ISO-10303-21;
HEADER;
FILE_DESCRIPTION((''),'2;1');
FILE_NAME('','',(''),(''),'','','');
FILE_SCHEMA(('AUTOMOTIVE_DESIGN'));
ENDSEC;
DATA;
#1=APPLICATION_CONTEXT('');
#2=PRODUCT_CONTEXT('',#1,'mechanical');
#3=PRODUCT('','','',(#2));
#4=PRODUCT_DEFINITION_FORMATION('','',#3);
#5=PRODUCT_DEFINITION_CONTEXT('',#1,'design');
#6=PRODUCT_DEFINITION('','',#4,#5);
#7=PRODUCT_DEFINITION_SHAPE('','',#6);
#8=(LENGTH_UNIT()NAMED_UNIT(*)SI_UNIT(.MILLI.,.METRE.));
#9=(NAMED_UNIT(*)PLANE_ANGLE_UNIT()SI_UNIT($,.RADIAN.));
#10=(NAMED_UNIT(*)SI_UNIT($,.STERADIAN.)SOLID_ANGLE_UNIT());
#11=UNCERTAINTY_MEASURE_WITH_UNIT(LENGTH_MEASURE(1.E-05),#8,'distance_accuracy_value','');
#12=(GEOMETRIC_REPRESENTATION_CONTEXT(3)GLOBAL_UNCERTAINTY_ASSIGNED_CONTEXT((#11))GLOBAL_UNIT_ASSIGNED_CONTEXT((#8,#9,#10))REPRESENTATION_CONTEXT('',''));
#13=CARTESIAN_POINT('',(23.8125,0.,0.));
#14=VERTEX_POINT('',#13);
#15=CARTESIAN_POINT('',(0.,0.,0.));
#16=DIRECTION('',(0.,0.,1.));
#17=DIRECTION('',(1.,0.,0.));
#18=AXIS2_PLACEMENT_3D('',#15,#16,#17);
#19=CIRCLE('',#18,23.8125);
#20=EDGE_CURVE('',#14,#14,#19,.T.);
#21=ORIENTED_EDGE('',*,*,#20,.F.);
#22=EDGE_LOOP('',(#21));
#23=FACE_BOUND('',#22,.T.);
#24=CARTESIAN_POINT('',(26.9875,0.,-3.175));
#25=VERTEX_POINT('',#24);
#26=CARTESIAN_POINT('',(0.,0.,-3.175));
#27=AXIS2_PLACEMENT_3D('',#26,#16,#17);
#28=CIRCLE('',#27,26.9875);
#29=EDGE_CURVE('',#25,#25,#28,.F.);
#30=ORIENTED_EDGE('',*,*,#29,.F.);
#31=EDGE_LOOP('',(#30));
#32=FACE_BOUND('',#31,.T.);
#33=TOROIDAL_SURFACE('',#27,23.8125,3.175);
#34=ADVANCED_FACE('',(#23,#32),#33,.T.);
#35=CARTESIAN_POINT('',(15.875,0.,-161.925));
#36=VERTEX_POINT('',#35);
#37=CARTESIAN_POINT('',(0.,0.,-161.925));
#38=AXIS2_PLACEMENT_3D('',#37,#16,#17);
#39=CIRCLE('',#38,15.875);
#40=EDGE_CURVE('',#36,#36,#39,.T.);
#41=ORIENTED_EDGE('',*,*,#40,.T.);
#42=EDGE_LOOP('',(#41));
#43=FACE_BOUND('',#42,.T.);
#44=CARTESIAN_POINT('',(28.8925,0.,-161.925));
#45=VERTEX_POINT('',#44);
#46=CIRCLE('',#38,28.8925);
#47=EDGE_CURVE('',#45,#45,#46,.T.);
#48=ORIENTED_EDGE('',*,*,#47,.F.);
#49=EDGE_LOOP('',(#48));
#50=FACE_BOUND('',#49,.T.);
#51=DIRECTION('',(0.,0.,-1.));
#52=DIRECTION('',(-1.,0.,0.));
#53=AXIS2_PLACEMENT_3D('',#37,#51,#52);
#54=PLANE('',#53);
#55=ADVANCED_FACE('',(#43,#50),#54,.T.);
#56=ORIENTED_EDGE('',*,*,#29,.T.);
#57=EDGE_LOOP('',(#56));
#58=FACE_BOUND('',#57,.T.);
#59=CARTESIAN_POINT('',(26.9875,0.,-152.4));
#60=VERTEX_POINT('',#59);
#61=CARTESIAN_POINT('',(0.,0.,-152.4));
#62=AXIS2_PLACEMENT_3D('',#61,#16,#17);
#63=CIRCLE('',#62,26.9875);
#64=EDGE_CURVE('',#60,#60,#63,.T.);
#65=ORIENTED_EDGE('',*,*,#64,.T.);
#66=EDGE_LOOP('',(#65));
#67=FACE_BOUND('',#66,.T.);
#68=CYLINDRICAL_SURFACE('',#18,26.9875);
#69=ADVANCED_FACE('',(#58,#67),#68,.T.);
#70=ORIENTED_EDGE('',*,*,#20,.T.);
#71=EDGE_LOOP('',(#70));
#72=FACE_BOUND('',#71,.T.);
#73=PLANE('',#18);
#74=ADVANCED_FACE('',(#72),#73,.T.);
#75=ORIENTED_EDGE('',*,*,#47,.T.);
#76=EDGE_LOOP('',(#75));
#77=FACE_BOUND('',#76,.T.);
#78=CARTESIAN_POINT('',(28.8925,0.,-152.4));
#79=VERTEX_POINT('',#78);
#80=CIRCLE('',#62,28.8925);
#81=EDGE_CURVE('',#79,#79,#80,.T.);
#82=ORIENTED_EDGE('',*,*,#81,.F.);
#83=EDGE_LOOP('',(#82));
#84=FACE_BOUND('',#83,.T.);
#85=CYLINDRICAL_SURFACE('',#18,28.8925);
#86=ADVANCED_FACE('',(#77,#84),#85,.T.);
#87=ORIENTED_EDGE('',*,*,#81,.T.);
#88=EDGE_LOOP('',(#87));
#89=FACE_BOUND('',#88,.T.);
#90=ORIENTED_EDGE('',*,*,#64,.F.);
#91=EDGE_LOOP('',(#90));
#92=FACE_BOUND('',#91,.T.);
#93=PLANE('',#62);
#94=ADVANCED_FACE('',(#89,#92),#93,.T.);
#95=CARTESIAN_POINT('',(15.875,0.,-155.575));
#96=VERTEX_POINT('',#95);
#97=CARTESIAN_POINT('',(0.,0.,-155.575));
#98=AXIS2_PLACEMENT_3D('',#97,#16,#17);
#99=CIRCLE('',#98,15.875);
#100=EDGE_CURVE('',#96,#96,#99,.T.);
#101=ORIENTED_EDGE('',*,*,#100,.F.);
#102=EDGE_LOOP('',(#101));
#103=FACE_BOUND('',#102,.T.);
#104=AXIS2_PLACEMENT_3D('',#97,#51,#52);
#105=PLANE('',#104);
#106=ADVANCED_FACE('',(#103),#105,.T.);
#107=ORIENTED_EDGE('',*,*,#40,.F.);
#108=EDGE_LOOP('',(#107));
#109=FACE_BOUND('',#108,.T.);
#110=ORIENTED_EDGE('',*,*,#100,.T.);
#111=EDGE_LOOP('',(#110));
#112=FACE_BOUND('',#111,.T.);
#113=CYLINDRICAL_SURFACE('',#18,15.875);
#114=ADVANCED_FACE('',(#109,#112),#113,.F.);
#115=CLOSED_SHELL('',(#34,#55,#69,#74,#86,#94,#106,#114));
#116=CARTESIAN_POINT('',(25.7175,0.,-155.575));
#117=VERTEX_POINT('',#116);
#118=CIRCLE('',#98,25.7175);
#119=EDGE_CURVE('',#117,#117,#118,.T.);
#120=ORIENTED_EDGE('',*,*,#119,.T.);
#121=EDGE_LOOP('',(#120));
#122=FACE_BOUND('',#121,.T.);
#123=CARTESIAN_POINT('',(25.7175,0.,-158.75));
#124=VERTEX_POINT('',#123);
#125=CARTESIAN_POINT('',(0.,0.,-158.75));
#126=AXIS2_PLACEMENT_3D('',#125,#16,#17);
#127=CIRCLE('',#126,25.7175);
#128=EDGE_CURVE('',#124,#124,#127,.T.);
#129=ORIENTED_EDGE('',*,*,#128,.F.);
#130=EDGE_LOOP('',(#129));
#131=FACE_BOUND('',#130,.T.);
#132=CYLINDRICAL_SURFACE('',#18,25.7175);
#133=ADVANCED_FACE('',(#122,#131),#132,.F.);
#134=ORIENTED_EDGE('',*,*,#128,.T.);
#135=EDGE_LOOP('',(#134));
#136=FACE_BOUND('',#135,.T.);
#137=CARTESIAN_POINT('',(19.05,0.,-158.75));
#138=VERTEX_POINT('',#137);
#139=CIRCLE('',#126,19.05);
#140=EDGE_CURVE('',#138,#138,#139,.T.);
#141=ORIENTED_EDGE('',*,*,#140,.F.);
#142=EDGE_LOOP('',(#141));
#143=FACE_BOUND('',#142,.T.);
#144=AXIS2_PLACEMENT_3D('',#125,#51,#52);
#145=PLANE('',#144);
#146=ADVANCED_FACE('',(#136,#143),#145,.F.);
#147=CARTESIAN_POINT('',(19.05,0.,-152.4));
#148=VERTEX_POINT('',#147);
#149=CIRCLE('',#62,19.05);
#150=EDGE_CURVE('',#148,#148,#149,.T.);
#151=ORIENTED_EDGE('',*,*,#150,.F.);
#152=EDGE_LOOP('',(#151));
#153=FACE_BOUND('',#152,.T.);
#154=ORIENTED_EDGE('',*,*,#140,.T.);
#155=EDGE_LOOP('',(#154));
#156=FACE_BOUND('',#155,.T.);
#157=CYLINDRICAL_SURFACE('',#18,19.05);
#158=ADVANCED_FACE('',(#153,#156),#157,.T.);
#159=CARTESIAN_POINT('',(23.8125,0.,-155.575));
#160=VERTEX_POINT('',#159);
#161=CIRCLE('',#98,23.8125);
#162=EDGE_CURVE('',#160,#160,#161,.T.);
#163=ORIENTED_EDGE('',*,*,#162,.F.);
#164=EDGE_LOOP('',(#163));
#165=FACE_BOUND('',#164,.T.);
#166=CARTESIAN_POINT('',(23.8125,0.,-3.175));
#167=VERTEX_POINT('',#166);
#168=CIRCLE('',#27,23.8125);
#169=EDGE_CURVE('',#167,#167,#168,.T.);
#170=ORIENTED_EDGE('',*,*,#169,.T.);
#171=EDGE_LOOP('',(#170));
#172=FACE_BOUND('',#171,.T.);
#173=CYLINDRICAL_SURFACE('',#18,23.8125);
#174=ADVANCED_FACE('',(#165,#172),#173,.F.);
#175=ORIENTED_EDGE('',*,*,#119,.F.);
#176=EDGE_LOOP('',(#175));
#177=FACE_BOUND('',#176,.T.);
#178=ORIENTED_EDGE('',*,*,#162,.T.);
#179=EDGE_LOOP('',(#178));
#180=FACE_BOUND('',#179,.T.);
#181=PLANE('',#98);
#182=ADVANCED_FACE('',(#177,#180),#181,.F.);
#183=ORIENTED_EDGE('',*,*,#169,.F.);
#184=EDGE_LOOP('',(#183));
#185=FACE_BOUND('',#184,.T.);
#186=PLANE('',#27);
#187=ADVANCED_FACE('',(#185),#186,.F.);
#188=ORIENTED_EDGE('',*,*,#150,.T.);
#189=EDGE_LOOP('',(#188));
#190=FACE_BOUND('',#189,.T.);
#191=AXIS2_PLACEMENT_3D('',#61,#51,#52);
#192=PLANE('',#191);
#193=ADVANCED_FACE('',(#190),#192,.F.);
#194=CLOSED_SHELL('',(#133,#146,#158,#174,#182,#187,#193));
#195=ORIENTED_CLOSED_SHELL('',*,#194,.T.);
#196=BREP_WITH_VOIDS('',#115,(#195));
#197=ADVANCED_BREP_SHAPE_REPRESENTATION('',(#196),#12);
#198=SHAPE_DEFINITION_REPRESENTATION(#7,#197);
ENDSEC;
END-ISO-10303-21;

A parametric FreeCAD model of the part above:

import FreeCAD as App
import Part
import Sketcher
from FreeCAD import Vector
Q = App.Units.Quantity


def edges_at(feature, points):
    """Names of the edges that pass closest to the given points."""
    edges = feature.Shape.Edges
    near = lambda p: min(range(len(edges)), key=lambda i: edges[i].distToShape(Part.Vertex(*p))[0])
    return sorted({f"Edge{near(p) + 1}" for p in points})

doc = App.newDocument("Part")
body = doc.addObject("PartDesign::Body", "Body")

# Sketch on YZ plane
sketch1 = body.newObject("Sketcher::SketchObject", "Sketch")
sketch1.AttachmentSupport = (doc.getObject("YZ_Plane"), [""])
sketch1.MapMode = "FlatFace"
sketch1.addGeometry([
    Part.LineSegment(Vector(27, 0, 0), Vector(0, 0, 0)),  # 0
    Part.LineSegment(Vector(0, 0, 0), Vector(0, -3.2, 0)),  # 1
    Part.LineSegment(Vector(0, -3.2, 0), Vector(23.8, -3.2, 0)),  # 2
    Part.LineSegment(Vector(23.8, -3.2, 0), Vector(23.8, -155.6, 0)),  # 3
    Part.LineSegment(Vector(23.8, -155.6, 0), Vector(25.7, -155.6, 0)),  # 4
    Part.LineSegment(Vector(25.7, -155.6, 0), Vector(25.7, -158.8, 0)),  # 5
    Part.LineSegment(Vector(25.7, -158.8, 0), Vector(19.1, -158.8, 0)),  # 6
    Part.LineSegment(Vector(19.1, -158.8, 0), Vector(19.1, -152.4, 0)),  # 7
    Part.LineSegment(Vector(19.1, -152.4, 0), Vector(0, -152.4, 0)),  # 8
    Part.LineSegment(Vector(0, -152.4, 0), Vector(0, -155.6, 0)),  # 9
    Part.LineSegment(Vector(0, -155.6, 0), Vector(15.9, -155.6, 0)),  # 10
    Part.LineSegment(Vector(15.9, -155.6, 0), Vector(15.9, -161.9, 0)),  # 11
    Part.LineSegment(Vector(15.9, -161.9, 0), Vector(28.9, -161.9, 0)),  # 12
    Part.LineSegment(Vector(28.9, -161.9, 0), Vector(28.9, -152.4, 0)),  # 13
    Part.LineSegment(Vector(28.9, -152.4, 0), Vector(27, -152.4, 0)),  # 14
    Part.LineSegment(Vector(27, -152.4, 0), Vector(27, 0, 0)),  # 15
], False)
sketch1.addConstraint([
    Sketcher.Constraint("Coincident", 0, 2, 1, 1),
    Sketcher.Constraint("Coincident", 1, 2, 2, 1),
    Sketcher.Constraint("Coincident", 2, 2, 3, 1),
    Sketcher.Constraint("Coincident", 3, 2, 4, 1),
    Sketcher.Constraint("Coincident", 4, 2, 5, 1),
    Sketcher.Constraint("Coincident", 5, 2, 6, 1),
    Sketcher.Constraint("Coincident", 6, 2, 7, 1),
    Sketcher.Constraint("Coincident", 7, 2, 8, 1),
    Sketcher.Constraint("Coincident", 8, 2, 9, 1),
    Sketcher.Constraint("Coincident", 9, 2, 10, 1),
    Sketcher.Constraint("Coincident", 10, 2, 11, 1),
    Sketcher.Constraint("Coincident", 11, 2, 12, 1),
    Sketcher.Constraint("Coincident", 12, 2, 13, 1),
    Sketcher.Constraint("Coincident", 13, 2, 14, 1),
    Sketcher.Constraint("Coincident", 14, 2, 15, 1),
    Sketcher.Constraint("Coincident", 15, 2, 0, 1),
    Sketcher.Constraint("Horizontal", 0),
    Sketcher.Constraint("Vertical", 1),
    Sketcher.Constraint("Horizontal", 2),
    Sketcher.Constraint("Vertical", 3),
    Sketcher.Constraint("Horizontal", 4),
    Sketcher.Constraint("Vertical", 5),
    Sketcher.Constraint("Horizontal", 6),
    Sketcher.Constraint("Vertical", 7),
    Sketcher.Constraint("Horizontal", 8),
    Sketcher.Constraint("Vertical", 9),
    Sketcher.Constraint("Horizontal", 10),
    Sketcher.Constraint("Vertical", 11),
    Sketcher.Constraint("Horizontal", 12),
    Sketcher.Constraint("Vertical", 13),
    Sketcher.Constraint("Horizontal", 14),
    Sketcher.Constraint("Vertical", 15),
    Sketcher.Constraint("Coincident", 0, 2, -1, 1),
    Sketcher.Constraint("PointOnObject", 8, 2, -2),
    Sketcher.Constraint("Horizontal", 4, 2, 9, 2),
    Sketcher.Constraint("Horizontal", 8, 2, 13, 2),
    Sketcher.Constraint("Equal", 4, 14),
    Sketcher.Constraint("Equal", 1, 5),
    Sketcher.Constraint("Equal", 5, 9),
    Sketcher.Constraint("Equal", 7, 11),
    Sketcher.Constraint("DistanceY", 3, 2, 3, 1, Q("6 in")),
    Sketcher.Constraint("DistanceX", 8, 2, 8, 1, Q("0.75 in")),
    Sketcher.Constraint("DistanceY", 7, 1, 7, 2, Q("0.25 in")),
    Sketcher.Constraint("DistanceX", 3, 2, 12, 2, Q("0.2 in")),
    Sketcher.Constraint("DistanceX", 0, 2, 0, 1, Q("1.0625 in")),
    Sketcher.Constraint("DistanceX", 2, 1, 2, 2, Q("0.9375 in")),
    Sketcher.Constraint("DistanceX", 10, 1, 10, 2, Q("0.625 in")),
])
revolution = body.newObject("PartDesign::Revolution", "Revolution")
revolution.Profile = sketch1
revolution.ReferenceAxis = (sketch1, ["V_Axis"])
revolution.Angle = 360
doc.recompute()

fillet = body.newObject("PartDesign::Fillet", "Fillet")
fillet.Base = (revolution, edges_at(revolution, [(-26.988, 0, 0)]))
fillet.Radius = Q("0.125 in")

doc.recompute()
